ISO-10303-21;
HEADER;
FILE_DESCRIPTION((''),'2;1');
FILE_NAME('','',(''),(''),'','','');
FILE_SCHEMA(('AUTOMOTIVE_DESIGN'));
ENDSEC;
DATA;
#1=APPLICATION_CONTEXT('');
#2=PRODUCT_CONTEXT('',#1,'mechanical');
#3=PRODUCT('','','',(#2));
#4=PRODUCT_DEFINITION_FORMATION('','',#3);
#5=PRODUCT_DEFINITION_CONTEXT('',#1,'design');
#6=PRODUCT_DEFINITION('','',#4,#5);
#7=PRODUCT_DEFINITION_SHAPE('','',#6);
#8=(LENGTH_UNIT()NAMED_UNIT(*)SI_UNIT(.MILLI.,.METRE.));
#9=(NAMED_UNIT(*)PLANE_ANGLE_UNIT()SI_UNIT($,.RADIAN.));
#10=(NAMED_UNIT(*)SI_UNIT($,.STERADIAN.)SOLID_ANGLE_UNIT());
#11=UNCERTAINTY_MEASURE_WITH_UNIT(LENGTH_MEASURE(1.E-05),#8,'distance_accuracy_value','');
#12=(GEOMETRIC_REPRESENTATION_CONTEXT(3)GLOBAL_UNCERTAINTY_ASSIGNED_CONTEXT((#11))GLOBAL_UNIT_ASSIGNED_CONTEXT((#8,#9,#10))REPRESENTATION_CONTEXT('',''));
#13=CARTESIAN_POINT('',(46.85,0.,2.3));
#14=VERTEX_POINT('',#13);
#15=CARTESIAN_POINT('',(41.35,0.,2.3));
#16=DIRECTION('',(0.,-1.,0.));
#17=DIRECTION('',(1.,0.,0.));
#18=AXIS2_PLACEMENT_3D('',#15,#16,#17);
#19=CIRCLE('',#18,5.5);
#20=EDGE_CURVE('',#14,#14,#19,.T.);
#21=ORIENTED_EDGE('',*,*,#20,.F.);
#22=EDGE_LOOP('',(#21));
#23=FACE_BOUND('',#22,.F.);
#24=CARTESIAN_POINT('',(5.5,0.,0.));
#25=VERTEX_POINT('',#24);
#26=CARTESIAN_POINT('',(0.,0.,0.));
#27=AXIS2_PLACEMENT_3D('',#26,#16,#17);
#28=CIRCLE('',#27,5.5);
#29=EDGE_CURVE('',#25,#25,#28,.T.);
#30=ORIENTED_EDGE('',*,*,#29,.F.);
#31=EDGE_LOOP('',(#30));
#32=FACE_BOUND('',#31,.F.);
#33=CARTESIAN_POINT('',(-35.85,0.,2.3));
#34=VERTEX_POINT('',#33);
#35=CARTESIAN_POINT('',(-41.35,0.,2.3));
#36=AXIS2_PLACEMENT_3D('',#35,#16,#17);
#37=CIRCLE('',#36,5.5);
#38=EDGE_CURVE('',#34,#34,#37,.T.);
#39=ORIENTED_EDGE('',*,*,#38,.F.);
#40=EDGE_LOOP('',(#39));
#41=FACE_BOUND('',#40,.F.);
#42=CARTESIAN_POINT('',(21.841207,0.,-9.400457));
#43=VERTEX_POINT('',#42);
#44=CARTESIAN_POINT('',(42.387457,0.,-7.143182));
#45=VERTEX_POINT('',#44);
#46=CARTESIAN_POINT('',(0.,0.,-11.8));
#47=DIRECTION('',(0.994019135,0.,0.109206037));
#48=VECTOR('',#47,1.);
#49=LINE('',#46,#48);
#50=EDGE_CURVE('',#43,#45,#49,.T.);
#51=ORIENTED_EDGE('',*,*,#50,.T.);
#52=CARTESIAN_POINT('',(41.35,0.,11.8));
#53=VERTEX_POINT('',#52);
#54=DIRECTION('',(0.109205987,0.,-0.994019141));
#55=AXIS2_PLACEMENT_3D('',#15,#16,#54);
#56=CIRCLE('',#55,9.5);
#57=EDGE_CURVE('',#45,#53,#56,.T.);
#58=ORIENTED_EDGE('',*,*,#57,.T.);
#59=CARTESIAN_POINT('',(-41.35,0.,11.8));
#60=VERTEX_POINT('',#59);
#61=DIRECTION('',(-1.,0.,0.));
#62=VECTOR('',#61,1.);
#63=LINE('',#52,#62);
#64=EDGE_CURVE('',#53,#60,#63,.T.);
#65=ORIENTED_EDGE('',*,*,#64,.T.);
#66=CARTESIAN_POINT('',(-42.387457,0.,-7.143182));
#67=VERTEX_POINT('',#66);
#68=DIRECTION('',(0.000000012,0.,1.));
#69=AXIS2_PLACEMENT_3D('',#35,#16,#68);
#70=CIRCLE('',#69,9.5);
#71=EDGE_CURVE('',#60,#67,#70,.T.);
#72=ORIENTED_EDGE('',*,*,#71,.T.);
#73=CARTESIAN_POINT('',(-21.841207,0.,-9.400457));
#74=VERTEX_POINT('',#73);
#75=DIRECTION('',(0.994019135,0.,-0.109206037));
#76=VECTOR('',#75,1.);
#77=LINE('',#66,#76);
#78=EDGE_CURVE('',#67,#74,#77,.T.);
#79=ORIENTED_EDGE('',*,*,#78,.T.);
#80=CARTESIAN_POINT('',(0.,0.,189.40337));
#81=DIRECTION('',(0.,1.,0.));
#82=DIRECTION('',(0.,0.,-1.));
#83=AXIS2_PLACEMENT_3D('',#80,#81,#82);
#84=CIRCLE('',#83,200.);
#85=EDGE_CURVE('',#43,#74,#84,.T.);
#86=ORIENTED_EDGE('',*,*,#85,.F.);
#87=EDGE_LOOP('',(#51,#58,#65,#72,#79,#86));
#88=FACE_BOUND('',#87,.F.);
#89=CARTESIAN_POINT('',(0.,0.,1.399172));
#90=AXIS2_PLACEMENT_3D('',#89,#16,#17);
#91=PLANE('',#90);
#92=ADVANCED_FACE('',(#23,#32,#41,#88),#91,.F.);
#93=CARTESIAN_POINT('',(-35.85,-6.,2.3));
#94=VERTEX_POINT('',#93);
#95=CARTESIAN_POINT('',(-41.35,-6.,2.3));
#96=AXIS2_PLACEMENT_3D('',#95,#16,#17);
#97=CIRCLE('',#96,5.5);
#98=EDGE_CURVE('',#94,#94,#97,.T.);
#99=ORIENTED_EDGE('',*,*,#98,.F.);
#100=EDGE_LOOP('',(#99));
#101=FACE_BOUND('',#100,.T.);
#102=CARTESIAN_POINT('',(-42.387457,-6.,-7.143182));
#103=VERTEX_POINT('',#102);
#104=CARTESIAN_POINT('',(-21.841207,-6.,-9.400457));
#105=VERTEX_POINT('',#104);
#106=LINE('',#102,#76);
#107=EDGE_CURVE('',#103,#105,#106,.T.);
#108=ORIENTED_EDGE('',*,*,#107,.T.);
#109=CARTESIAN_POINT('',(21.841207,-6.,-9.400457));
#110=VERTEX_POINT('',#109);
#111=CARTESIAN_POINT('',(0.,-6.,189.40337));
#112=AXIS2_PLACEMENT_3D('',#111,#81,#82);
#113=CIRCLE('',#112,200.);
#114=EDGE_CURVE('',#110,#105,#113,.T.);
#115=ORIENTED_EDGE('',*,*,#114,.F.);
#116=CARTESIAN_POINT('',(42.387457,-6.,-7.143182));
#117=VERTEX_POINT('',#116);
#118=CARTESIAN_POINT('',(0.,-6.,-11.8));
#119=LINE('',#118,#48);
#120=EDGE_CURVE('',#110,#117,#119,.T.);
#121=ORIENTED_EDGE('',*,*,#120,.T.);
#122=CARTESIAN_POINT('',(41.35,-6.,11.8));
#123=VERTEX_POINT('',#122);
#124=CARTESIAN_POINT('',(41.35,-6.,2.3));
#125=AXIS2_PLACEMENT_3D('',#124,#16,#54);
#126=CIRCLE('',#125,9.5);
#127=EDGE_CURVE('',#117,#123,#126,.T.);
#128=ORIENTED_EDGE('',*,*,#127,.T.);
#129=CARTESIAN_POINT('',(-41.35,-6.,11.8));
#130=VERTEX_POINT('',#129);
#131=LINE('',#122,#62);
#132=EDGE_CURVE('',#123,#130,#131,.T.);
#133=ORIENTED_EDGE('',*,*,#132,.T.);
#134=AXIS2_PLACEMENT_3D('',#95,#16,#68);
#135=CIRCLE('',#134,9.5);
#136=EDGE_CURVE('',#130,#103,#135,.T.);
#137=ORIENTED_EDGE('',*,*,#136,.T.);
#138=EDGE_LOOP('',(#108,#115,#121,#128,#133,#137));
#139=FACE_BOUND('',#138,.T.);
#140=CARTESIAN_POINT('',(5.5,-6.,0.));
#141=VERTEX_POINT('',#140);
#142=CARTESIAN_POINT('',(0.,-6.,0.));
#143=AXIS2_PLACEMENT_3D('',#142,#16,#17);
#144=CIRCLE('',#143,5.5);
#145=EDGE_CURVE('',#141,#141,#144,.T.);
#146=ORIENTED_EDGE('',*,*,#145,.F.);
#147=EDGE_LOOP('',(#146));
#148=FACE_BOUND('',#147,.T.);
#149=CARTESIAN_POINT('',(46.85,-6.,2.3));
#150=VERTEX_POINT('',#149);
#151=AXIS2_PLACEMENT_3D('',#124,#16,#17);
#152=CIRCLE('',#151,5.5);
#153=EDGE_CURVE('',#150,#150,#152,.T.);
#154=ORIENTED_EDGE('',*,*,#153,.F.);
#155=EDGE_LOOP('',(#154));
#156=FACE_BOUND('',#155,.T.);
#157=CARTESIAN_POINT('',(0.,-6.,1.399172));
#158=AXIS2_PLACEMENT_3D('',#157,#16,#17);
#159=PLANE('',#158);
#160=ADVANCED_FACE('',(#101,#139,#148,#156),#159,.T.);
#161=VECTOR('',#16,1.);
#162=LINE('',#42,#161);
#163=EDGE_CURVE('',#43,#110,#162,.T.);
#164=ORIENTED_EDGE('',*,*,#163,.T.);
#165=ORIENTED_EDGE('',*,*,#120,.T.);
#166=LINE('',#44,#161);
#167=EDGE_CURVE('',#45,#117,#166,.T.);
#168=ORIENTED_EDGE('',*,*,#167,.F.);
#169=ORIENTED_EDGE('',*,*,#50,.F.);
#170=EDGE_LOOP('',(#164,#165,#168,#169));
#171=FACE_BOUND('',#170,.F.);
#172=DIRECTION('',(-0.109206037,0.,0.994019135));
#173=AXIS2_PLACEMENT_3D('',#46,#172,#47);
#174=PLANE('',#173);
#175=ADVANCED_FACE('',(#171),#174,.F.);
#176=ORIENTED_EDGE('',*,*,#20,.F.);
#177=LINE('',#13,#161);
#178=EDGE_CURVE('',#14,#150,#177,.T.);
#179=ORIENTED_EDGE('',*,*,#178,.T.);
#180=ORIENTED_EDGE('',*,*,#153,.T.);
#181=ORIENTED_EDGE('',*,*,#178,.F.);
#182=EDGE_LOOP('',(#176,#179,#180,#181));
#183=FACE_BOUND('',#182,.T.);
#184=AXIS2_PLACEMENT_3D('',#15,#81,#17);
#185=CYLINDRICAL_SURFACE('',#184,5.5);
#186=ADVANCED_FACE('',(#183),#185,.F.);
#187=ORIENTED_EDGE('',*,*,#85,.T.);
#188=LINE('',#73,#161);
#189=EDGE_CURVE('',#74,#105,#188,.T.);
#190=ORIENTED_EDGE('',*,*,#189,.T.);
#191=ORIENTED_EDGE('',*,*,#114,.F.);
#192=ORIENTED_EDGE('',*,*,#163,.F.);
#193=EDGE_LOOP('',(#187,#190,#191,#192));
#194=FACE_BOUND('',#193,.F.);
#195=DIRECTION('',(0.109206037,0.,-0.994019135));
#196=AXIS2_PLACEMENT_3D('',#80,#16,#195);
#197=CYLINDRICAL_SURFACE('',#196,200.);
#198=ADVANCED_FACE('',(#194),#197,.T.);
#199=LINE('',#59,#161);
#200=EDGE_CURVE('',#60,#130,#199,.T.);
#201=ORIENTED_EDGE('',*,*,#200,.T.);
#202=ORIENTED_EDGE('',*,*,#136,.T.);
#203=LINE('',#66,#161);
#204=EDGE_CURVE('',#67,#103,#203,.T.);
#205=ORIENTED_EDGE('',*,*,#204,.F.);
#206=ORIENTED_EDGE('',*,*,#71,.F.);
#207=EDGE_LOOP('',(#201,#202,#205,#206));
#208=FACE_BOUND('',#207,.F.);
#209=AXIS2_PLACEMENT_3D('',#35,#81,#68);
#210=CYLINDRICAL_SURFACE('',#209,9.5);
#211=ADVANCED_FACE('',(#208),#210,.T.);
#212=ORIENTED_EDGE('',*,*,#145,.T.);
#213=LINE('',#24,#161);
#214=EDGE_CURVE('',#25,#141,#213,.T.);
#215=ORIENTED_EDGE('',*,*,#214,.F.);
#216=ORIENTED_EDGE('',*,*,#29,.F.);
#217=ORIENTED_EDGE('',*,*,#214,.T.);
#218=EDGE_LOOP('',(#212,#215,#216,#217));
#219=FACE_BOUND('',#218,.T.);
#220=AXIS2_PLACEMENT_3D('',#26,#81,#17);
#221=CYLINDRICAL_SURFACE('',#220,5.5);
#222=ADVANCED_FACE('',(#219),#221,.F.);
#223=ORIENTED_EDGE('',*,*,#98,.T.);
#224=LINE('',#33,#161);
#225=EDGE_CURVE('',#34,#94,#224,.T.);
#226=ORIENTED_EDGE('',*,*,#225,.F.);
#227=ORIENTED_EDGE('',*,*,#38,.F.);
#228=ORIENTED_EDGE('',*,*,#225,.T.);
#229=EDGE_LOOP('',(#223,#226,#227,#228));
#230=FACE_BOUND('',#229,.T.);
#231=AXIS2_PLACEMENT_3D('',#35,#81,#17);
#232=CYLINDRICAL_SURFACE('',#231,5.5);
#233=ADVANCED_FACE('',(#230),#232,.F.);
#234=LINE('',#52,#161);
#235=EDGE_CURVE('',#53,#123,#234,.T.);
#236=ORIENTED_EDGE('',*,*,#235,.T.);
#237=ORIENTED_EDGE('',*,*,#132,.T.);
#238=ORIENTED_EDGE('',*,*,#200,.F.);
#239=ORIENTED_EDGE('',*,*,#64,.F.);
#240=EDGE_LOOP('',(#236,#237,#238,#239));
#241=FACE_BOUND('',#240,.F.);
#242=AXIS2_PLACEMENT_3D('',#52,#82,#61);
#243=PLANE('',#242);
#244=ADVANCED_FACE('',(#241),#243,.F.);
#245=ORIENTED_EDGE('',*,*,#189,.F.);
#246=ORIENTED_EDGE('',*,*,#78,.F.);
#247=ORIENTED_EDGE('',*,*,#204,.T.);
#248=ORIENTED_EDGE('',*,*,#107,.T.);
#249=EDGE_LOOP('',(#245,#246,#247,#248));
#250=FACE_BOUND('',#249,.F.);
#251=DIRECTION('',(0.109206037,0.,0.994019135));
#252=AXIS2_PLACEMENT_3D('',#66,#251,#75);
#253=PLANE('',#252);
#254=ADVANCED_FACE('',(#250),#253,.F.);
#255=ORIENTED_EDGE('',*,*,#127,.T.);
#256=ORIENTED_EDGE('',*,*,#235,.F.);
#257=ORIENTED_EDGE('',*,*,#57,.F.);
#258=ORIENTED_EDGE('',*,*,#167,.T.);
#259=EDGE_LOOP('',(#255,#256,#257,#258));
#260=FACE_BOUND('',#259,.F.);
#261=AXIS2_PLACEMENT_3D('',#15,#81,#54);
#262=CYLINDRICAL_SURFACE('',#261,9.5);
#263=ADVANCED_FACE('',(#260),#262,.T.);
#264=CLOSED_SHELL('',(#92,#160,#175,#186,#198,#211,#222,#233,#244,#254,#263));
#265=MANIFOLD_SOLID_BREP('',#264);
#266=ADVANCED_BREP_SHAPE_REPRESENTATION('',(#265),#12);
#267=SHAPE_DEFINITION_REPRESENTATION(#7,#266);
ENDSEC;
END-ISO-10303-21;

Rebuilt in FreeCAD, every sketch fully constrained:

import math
import FreeCAD as App
import Part
import Sketcher
Q = App.Units.Quantity


def edges_at(feature, points):
    """Names of the edges that pass closest to the given points."""
    edges = feature.Shape.Edges
    near = lambda p: min(range(len(edges)), key=lambda i: edges[i].distToShape(Part.Vertex(*p))[0])
    return sorted({f"Edge{near(p) + 1}" for p in points})

doc = App.newDocument("Part")
body = doc.addObject("PartDesign::Body", "Body")

sketch1 = doc.addObject("Sketcher::SketchObject", "Sketch")
body.addObject(sketch1)
sketch1.AttachmentSupport = (doc.XZ_Plane, [""])
sketch1.MapMode = "FlatFace"
sketch1.addGeometry([
    Part.LineSegment(App.Vector(41, 12, 0), App.Vector(-41, 12, 0)),
    Part.ArcOfCircle(Part.Circle(App.Vector(-41, 2, 0), App.Vector(0, 0, 1), 10), math.radians(90), math.radians(264)),
    Part.LineSegment(App.Vector(-42, -7, 0), App.Vector(0, -12, 0)),
    Part.LineSegment(App.Vector(0, -12, 0), App.Vector(42, -7, 0)),
    Part.ArcOfCircle(Part.Circle(App.Vector(41, 2, 0), App.Vector(0, 0, 1), 10), math.radians(-84), math.radians(90)),
    Part.Circle(App.Vector(0, 0, 0), App.Vector(0, 0, 1), 6),
    Part.Circle(App.Vector(-41, 2, 0), App.Vector(0, 0, 1), 6),
    Part.Circle(App.Vector(41, 2, 0), App.Vector(0, 0, 1), 6),
], False)
sketch1.addConstraint([
    Sketcher.Constraint("Tangent", 0, 2, 1, 1),
    Sketcher.Constraint("Tangent", 1, 2, 2, 1),
    Sketcher.Constraint("Coincident", 2, 2, 3, 1),
    Sketcher.Constraint("Tangent", 3, 2, 4, 1),
    Sketcher.Constraint("Tangent", 4, 2, 0, 1),
    Sketcher.Constraint("Horizontal", 0),
    Sketcher.Constraint("Coincident", 5, 3, -1, 1),
    Sketcher.Constraint("Coincident", 6, 3, 1, 3),
    Sketcher.Constraint("Coincident", 7, 3, 4, 3),
    Sketcher.Constraint("Equal", 1, 4),
    Sketcher.Constraint("Equal", 5, 6),
    Sketcher.Constraint("Equal", 6, 7),
    Sketcher.Constraint("PointOnObject", 2, 2, -2),
    Sketcher.Constraint("Equal", 2, 3),
    Sketcher.Constraint("Diameter", 5, Q("11 mm")),
    Sketcher.Constraint("Radius", 1, Q("9.5 mm")),
    Sketcher.Constraint("DistanceX", 0, 2, 0, 1, Q("82.7 mm")),
    Sketcher.Constraint("DistanceY", -1, 1, 1, 3, Q("2.3 mm")),
    Sketcher.Constraint("DistanceY", 2, 2, -1, 1, Q("11.8 mm")),
])
pad1 = doc.addObject("PartDesign::Pad", "Pad")
body.addObject(pad1)
pad1.Profile = sketch1
pad1.Length = 6
doc.recompute()

fillet = doc.addObject("PartDesign::Fillet", "Fillet")
body.addObject(fillet)
fillet.Base = (pad1, edges_at(pad1, [(0, -3, -11.8)]))
fillet.Radius = 200

doc.recompute()
